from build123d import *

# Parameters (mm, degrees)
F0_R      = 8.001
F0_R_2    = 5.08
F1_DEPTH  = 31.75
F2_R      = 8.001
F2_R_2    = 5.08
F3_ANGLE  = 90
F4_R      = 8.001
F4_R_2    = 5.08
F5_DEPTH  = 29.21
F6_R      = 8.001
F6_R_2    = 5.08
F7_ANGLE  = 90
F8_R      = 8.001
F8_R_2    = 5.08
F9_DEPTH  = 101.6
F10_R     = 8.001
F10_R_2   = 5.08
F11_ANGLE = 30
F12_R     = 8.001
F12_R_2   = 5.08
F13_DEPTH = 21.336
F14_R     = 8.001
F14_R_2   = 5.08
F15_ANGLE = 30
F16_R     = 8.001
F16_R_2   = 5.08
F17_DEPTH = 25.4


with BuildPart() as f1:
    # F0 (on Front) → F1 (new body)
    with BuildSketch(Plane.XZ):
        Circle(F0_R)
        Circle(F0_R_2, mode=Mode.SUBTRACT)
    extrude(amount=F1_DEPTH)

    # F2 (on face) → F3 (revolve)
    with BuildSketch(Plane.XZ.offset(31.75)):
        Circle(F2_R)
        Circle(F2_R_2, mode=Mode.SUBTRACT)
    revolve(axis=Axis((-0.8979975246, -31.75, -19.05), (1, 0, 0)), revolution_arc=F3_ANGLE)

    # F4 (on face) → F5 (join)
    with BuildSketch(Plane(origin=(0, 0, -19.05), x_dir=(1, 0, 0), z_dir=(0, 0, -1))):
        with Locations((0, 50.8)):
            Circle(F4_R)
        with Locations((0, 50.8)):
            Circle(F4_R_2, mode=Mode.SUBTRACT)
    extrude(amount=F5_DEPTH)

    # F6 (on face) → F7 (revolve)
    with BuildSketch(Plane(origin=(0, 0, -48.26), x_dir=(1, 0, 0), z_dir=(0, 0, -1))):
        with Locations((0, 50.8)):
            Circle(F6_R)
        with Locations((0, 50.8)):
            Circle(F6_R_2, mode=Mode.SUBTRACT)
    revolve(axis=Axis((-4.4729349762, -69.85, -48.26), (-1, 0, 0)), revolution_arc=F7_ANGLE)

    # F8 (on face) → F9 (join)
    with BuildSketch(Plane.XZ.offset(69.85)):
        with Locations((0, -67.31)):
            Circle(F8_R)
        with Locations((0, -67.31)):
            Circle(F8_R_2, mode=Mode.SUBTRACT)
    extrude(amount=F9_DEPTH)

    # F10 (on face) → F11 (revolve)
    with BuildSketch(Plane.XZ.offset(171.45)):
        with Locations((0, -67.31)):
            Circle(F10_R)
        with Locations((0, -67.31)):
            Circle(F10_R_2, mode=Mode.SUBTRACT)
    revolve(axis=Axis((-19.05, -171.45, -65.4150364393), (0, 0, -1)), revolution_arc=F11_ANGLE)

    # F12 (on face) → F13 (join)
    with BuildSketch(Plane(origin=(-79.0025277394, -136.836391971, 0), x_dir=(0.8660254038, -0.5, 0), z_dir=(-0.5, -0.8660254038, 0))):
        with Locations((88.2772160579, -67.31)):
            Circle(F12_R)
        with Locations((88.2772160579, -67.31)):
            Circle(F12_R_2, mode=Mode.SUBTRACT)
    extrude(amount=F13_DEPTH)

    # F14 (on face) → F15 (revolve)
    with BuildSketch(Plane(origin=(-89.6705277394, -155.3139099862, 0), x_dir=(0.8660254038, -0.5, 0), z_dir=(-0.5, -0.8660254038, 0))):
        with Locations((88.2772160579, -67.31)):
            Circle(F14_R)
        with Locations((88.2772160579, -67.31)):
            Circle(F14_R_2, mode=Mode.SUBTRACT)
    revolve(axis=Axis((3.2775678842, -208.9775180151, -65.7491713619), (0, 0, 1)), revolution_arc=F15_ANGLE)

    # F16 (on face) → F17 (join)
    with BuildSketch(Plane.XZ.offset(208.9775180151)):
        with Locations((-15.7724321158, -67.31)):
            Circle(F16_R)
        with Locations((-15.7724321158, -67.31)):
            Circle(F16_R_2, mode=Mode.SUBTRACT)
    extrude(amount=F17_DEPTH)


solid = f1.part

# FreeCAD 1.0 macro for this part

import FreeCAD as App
import Part
import Sketcher
from FreeCAD import Vector
Q = App.Units.Quantity

doc = App.newDocument("Part")
body = doc.addObject("PartDesign::Body", "Body")

sketch1 = body.newObject("Sketcher::SketchObject", "Sketch")
sketch1.AttachmentSupport = (doc.getObject("XZ_Plane"), [""])
sketch1.MapMode = "FlatFace"
sketch1.addGeometry(Part.Circle(Vector(0, 0, 0), Vector(0, 0, 1), 8), False)
sketch1.addGeometry(Part.Circle(Vector(0, 0, 0), Vector(0, 0, 1), 5), False)
sketch1.addConstraint(Sketcher.Constraint("Coincident", 0, 3, -1, 1))
sketch1.addConstraint(Sketcher.Constraint("Coincident", 1, 3, -1, 1))
sketch1.addConstraint(Sketcher.Constraint("Diameter", 1, Q("0.4 in")))
sketch1.addConstraint(Sketcher.Constraint("Diameter", 0, Q("0.63 in")))
pad1 = body.newObject("PartDesign::Pad", "Pad")
pad1.Profile = sketch1
pad1.Length = Q("1.25 in")

sketch2 = body.newObject("Sketcher::SketchObject", "Sketch001")
sketch2.AttachmentSupport = (doc.getObject("XZ_Plane"), [""])
sketch2.MapMode = "FlatFace"
sketch2.AttachmentOffset = App.Placement(Vector(0, 0, 1.25 * 25.4), App.Rotation())
sketch2.addGeometry(Part.Circle(Vector(0, 0, 0), Vector(0, 0, 1), 8), False)
sketch2.addGeometry(Part.Circle(Vector(0, 0, 0), Vector(0, 0, 1), 5), False)
sketch2.addGeometry(Part.LineSegment(Vector(0, -19, 0), Vector(10, -19, 0)), True)
sketch2.addConstraint(Sketcher.Constraint("Horizontal", 2))
sketch2.addConstraint(Sketcher.Constraint("Coincident", 0, 3, -1, 1))
sketch2.addConstraint(Sketcher.Constraint("Coincident", 1, 3, -1, 1))
sketch2.addConstraint(Sketcher.Constraint("PointOnObject", 2, 1, -2))
sketch2.addConstraint(Sketcher.Constraint("Diameter", 1, Q("0.4 in")))
sketch2.addConstraint(Sketcher.Constraint("Diameter", 0, Q("0.63 in")))
sketch2.addConstraint(Sketcher.Constraint("DistanceY", 2, 1, -1, 1, Q("0.75 in")))
sketch2.addConstraint(Sketcher.Constraint("DistanceX", 2, 1, 2, 2, Q("10 mm")))
revolution = body.newObject("PartDesign::Revolution", "Revolution")
revolution.Profile = sketch2
revolution.ReferenceAxis = (sketch2, ["Axis0"])
revolution.Angle = 90

sketch3 = body.newObject("Sketcher::SketchObject", "Sketch002")
sketch3.AttachmentSupport = (doc.getObject("XY_Plane"), [""])
sketch3.MapMode = "FlatFace"
sketch3.AttachmentOffset = App.Placement(Vector(0, 0, -0.75 * 25.4), App.Rotation())
sketch3.addGeometry(Part.Circle(Vector(0, -51, 0), Vector(0, 0, 1), 8), False)
sketch3.addGeometry(Part.Circle(Vector(0, -51, 0), Vector(0, 0, 1), 5), False)
sketch3.addConstraint(Sketcher.Constraint("Coincident", 1, 3, 0, 3))
sketch3.addConstraint(Sketcher.Constraint("PointOnObject", 0, 3, -2))
sketch3.addConstraint(Sketcher.Constraint("Diameter", 1, Q("0.4 in")))
sketch3.addConstraint(Sketcher.Constraint("Diameter", 0, Q("0.63 in")))
sketch3.addConstraint(Sketcher.Constraint("DistanceY", 0, 3, -1, 1, Q("2 in")))
pad2 = body.newObject("PartDesign::Pad", "Pad001")
pad2.Profile = sketch3
pad2.Length = Q("1.15 in")
pad2.Reversed = True

sketch4 = body.newObject("Sketcher::SketchObject", "Sketch003")
sketch4.AttachmentSupport = (doc.getObject("XY_Plane"), [""])
sketch4.MapMode = "FlatFace"
sketch4.AttachmentOffset = App.Placement(Vector(0, 0, -1.9 * 25.4), App.Rotation())
sketch4.addGeometry(Part.Circle(Vector(0, -51, 0), Vector(0, 0, 1), 8), False)
sketch4.addGeometry(Part.Circle(Vector(0, -51, 0), Vector(0, 0, 1), 5), False)
sketch4.addGeometry(Part.LineSegment(Vector(0, -70, 0), Vector(-10, -70, 0)), True)
sketch4.addConstraint(Sketcher.Constraint("Horizontal", 2))
sketch4.addConstraint(Sketcher.Constraint("Coincident", 1, 3, 0, 3))
sketch4.addConstraint(Sketcher.Constraint("PointOnObject", 0, 3, -2))
sketch4.addConstraint(Sketcher.Constraint("PointOnObject", 2, 1, -2))
sketch4.addConstraint(Sketcher.Constraint("Diameter", 1, Q("0.4 in")))
sketch4.addConstraint(Sketcher.Constraint("Diameter", 0, Q("0.63 in")))
sketch4.addConstraint(Sketcher.Constraint("DistanceY", 0, 3, -1, 1, Q("2 in")))
sketch4.addConstraint(Sketcher.Constraint("DistanceY", 2, 1, -1, 1, Q("2.75 in")))
sketch4.addConstraint(Sketcher.Constraint("DistanceX", 2, 2, 2, 1, Q("10 mm")))
revolution2 = body.newObject("PartDesign::Revolution", "Revolution001")
revolution2.Profile = sketch4
revolution2.ReferenceAxis = (sketch4, ["Axis0"])
revolution2.Angle = 90

sketch5 = body.newObject("Sketcher::SketchObject", "Sketch004")
sketch5.AttachmentSupport = (doc.getObject("XZ_Plane"), [""])
sketch5.MapMode = "FlatFace"
sketch5.AttachmentOffset = App.Placement(Vector(0, 0, 2.75 * 25.4), App.Rotation())
sketch5.addGeometry(Part.Circle(Vector(0, -67, 0), Vector(0, 0, 1), 8), False)
sketch5.addGeometry(Part.Circle(Vector(0, -67, 0), Vector(0, 0, 1), 5), False)
sketch5.addConstraint(Sketcher.Constraint("Coincident", 1, 3, 0, 3))
sketch5.addConstraint(Sketcher.Constraint("PointOnObject", 0, 3, -2))
sketch5.addConstraint(Sketcher.Constraint("Diameter", 1, Q("0.4 in")))
sketch5.addConstraint(Sketcher.Constraint("Diameter", 0, Q("0.63 in")))
sketch5.addConstraint(Sketcher.Constraint("DistanceY", 0, 3, -1, 1, Q("2.65 in")))
pad3 = body.newObject("PartDesign::Pad", "Pad002")
pad3.Profile = sketch5
pad3.Length = Q("4 in")

sketch6 = body.newObject("Sketcher::SketchObject", "Sketch005")
sketch6.AttachmentSupport = (doc.getObject("XZ_Plane"), [""])
sketch6.MapMode = "FlatFace"
sketch6.AttachmentOffset = App.Placement(Vector(0, 0, 6.75 * 25.4), App.Rotation())
sketch6.addGeometry(Part.Circle(Vector(0, -67, 0), Vector(0, 0, 1), 8), False)
sketch6.addGeometry(Part.Circle(Vector(0, -67, 0), Vector(0, 0, 1), 5), False)
sketch6.addGeometry(Part.LineSegment(Vector(-19, -67, 0), Vector(-19, -77, 0)), True)
sketch6.addConstraint(Sketcher.Constraint("Vertical", 2))
sketch6.addConstraint(Sketcher.Constraint("Coincident", 1, 3, 0, 3))
sketch6.addConstraint(Sketcher.Constraint("PointOnObject", 0, 3, -2))
sketch6.addConstraint(Sketcher.Constraint("Horizontal", 1, 3, 2, 1))
sketch6.addConstraint(Sketcher.Constraint("Diameter", 1, Q("0.4 in")))
sketch6.addConstraint(Sketcher.Constraint("Diameter", 0, Q("0.63 in")))
sketch6.addConstraint(Sketcher.Constraint("DistanceY", 0, 3, -1, 1, Q("2.65 in")))
sketch6.addConstraint(Sketcher.Constraint("DistanceX", 2, 1, -1, 1, Q("0.75 in")))
sketch6.addConstraint(Sketcher.Constraint("DistanceY", 2, 2, 2, 1, Q("10 mm")))
revolution3 = body.newObject("PartDesign::Revolution", "Revolution002")
revolution3.Profile = sketch6
revolution3.ReferenceAxis = (sketch6, ["Axis0"])
revolution3.Angle = 30

sketch7 = body.newObject("Sketcher::SketchObject", "Sketch006")
sketch7.Placement = App.Placement(Vector(-79.002528, -136.836392, 0), App.Rotation(Vector(0.866025404, -0.5, 0), Vector(0, 0, 1), Vector(-0.5, -0.866025404, 0), "ZXY"))
sketch7.addGeometry(Part.Circle(Vector(88, -67, 0), Vector(0, 0, 1), 8), False)
sketch7.addGeometry(Part.Circle(Vector(88, -67, 0), Vector(0, 0, 1), 5), False)
sketch7.addConstraint(Sketcher.Constraint("Coincident", 1, 3, 0, 3))
sketch7.addConstraint(Sketcher.Constraint("Diameter", 1, Q("0.4 in")))
sketch7.addConstraint(Sketcher.Constraint("Diameter", 0, Q("0.63 in")))
sketch7.addConstraint(Sketcher.Constraint("DistanceY", 0, 3, -1, 1, Q("2.65 in")))
sketch7.addConstraint(Sketcher.Constraint("DistanceX", -1, 1, 0, 3, Q("88.277216 mm")))
pad4 = body.newObject("PartDesign::Pad", "Pad003")
pad4.Profile = sketch7
pad4.Length = Q("0.84 in")

sketch8 = body.newObject("Sketcher::SketchObject", "Sketch007")
sketch8.Placement = App.Placement(Vector(-89.670528, -155.31391, 0), App.Rotation(Vector(0.866025404, -0.5, 0), Vector(0, 0, 1), Vector(-0.5, -0.866025404, 0), "ZXY"))
sketch8.addGeometry(Part.Circle(Vector(88, -67, 0), Vector(0, 0, 1), 8), False)
sketch8.addGeometry(Part.Circle(Vector(88, -67, 0), Vector(0, 0, 1), 5), False)
sketch8.addGeometry(Part.LineSegment(Vector(107, -67, 0), Vector(107, -57, 0)), True)
sketch8.addConstraint(Sketcher.Constraint("Vertical", 2))
sketch8.addConstraint(Sketcher.Constraint("Coincident", 1, 3, 0, 3))
sketch8.addConstraint(Sketcher.Constraint("Horizontal", 1, 3, 2, 1))
sketch8.addConstraint(Sketcher.Constraint("Diameter", 1, Q("0.4 in")))
sketch8.addConstraint(Sketcher.Constraint("Diameter", 0, Q("0.63 in")))
sketch8.addConstraint(Sketcher.Constraint("DistanceY", 0, 3, -1, 1, Q("2.65 in")))
sketch8.addConstraint(Sketcher.Constraint("DistanceX", 0, 3, 2, 1, Q("0.75 in")))
sketch8.addConstraint(Sketcher.Constraint("DistanceY", 2, 1, 2, 2, Q("10 mm")))
sketch8.addConstraint(Sketcher.Constraint("DistanceX", -1, 1, 0, 3, Q("88.277216 mm")))
revolution4 = body.newObject("PartDesign::Revolution", "Revolution003")
revolution4.Profile = sketch8
revolution4.ReferenceAxis = (sketch8, ["Axis0"])
revolution4.Angle = 30

sketch9 = body.newObject("Sketcher::SketchObject", "Sketch008")
sketch9.AttachmentSupport = (doc.getObject("XZ_Plane"), [""])
sketch9.MapMode = "FlatFace"
sketch9.AttachmentOffset = App.Placement(Vector(0, 0, 208.977518), App.Rotation())
sketch9.addGeometry(Part.Circle(Vector(-16, -67, 0), Vector(0, 0, 1), 8), False)
sketch9.addGeometry(Part.Circle(Vector(-16, -67, 0), Vector(0, 0, 1), 5), False)
sketch9.addConstraint(Sketcher.Constraint("Coincident", 1, 3, 0, 3))
sketch9.addConstraint(Sketcher.Constraint("Diameter", 1, Q("0.4 in")))
sketch9.addConstraint(Sketcher.Constraint("Diameter", 0, Q("0.63 in")))
sketch9.addConstraint(Sketcher.Constraint("DistanceY", 0, 3, -1, 1, Q("2.65 in")))
sketch9.addConstraint(Sketcher.Constraint("DistanceX", 0, 3, -1, 1, Q("15.772432 mm")))
pad5 = body.newObject("PartDesign::Pad", "Pad004")
pad5.Profile = sketch9
pad5.Length = Q("1 in")

doc.recompute()
